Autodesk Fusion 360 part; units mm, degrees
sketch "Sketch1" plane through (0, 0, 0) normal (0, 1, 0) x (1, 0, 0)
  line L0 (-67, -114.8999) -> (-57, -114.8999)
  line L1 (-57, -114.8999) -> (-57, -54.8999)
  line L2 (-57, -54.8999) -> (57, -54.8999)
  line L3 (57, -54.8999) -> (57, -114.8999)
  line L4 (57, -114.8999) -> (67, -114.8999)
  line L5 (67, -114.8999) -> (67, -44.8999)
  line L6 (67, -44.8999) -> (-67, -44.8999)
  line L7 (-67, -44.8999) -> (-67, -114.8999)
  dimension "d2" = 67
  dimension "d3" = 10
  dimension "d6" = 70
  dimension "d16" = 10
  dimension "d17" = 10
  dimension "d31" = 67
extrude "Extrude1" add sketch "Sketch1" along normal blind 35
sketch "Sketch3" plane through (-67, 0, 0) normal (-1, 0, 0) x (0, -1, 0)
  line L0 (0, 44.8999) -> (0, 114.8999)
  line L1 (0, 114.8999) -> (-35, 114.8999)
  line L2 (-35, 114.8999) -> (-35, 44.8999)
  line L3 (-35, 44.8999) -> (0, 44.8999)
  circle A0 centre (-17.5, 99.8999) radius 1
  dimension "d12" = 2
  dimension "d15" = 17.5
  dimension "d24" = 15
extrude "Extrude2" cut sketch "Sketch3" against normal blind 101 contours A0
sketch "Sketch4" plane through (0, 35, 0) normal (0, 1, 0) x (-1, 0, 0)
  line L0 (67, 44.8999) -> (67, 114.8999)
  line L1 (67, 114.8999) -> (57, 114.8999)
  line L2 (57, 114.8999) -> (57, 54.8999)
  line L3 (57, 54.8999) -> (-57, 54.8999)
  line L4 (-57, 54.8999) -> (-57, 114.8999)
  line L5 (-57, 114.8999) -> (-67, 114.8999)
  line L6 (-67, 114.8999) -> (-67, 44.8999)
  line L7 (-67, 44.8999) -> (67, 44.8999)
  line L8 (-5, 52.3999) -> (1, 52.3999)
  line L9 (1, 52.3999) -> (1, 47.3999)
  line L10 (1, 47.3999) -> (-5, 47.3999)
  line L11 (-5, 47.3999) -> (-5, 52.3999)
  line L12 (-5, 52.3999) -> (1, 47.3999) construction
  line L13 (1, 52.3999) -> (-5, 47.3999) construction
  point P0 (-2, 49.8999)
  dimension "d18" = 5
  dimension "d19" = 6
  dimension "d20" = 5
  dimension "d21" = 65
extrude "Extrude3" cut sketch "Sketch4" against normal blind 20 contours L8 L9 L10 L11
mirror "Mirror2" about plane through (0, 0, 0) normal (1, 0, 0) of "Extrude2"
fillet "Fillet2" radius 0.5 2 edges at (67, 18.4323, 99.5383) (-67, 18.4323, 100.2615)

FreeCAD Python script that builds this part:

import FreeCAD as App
import Part
import Sketcher

V = App.Vector
Q = App.Units.Quantity


def edges_at(feature, points):
    """Names of the edges that pass closest to the given points."""
    edges = feature.Shape.Edges
    near = lambda p: min(range(len(edges)), key=lambda i: edges[i].distToShape(Part.Vertex(*p))[0])
    return sorted({f"Edge{near(p) + 1}" for p in points})

doc = App.newDocument("Part")
body = doc.addObject("PartDesign::Body", "Body")

# Sketch on XZ plane
sketch1 = body.newObject("Sketcher::SketchObject", "Sketch")
sketch1.AttachmentSupport = (doc.getObject("XZ_Plane"), [""])
sketch1.MapMode = "FlatFace"
sketch1.addGeometry(Part.LineSegment(V(-67, 45, 0), V(-67, 115, 0)), False)
sketch1.addGeometry(Part.LineSegment(V(-67, 115, 0), V(-57, 115, 0)), False)
sketch1.addGeometry(Part.LineSegment(V(-57, 115, 0), V(-57, 55, 0)), False)
sketch1.addGeometry(Part.LineSegment(V(-57, 55, 0), V(57, 55, 0)), False)
sketch1.addGeometry(Part.LineSegment(V(57, 55, 0), V(57, 115, 0)), False)
sketch1.addGeometry(Part.LineSegment(V(57, 115, 0), V(67, 115, 0)), False)
sketch1.addGeometry(Part.LineSegment(V(67, 115, 0), V(67, 45, 0)), False)
sketch1.addGeometry(Part.LineSegment(V(67, 45, 0), V(-67, 45, 0)), False)
sketch1.addConstraint(Sketcher.Constraint("Coincident", 0, 2, 1, 1))
sketch1.addConstraint(Sketcher.Constraint("Coincident", 1, 2, 2, 1))
sketch1.addConstraint(Sketcher.Constraint("Coincident", 2, 2, 3, 1))
sketch1.addConstraint(Sketcher.Constraint("Coincident", 3, 2, 4, 1))
sketch1.addConstraint(Sketcher.Constraint("Coincident", 4, 2, 5, 1))
sketch1.addConstraint(Sketcher.Constraint("Coincident", 5, 2, 6, 1))
sketch1.addConstraint(Sketcher.Constraint("Coincident", 6, 2, 7, 1))
sketch1.addConstraint(Sketcher.Constraint("Coincident", 7, 2, 0, 1))
sketch1.addConstraint(Sketcher.Constraint("Vertical", 0))
sketch1.addConstraint(Sketcher.Constraint("Horizontal", 1))
sketch1.addConstraint(Sketcher.Constraint("Vertical", 2))
sketch1.addConstraint(Sketcher.Constraint("Horizontal", 3))
sketch1.addConstraint(Sketcher.Constraint("Vertical", 4))
sketch1.addConstraint(Sketcher.Constraint("Horizontal", 5))
sketch1.addConstraint(Sketcher.Constraint("Vertical", 6))
sketch1.addConstraint(Sketcher.Constraint("Horizontal", 7))
sketch1.addConstraint(Sketcher.Constraint("Symmetric", 1, 2, 4, 2, -2))
sketch1.addConstraint(Sketcher.Constraint("Equal", 1, 5))
sketch1.addConstraint(Sketcher.Constraint("DistanceX", 1, 1, 1, 2, Q("10 mm")))
sketch1.addConstraint(Sketcher.Constraint("DistanceY", 0, 1, 0, 2, Q("70 mm")))
sketch1.addConstraint(Sketcher.Constraint("DistanceX", 0, 2, -1, 1, Q("67 mm")))
sketch1.addConstraint(Sketcher.Constraint("DistanceY", 6, 2, 3, 2, Q("10 mm")))
sketch1.addConstraint(Sketcher.Constraint("DistanceY", -1, 1, 0, 2, Q("114.9 mm")))
pad1 = body.newObject("PartDesign::Pad", "Pad")
pad1.Profile = sketch1
pad1.Length = 35
pad1.Reversed = True

# Sketch on YZ plane
sketch2 = body.newObject("Sketcher::SketchObject", "Sketch001")
sketch2.AttachmentSupport = (doc.getObject("YZ_Plane"), [""])
sketch2.MapMode = "FlatFace"
sketch2.AttachmentOffset = App.Placement(V(0, 0, -67), App.Rotation())
sketch2.addGeometry(Part.Circle(V(17.5, 99.9, 0), V(0, 0, 1), 1), False)
sketch2.addConstraint(Sketcher.Constraint("Diameter", 0, Q("2 mm")))
sketch2.addConstraint(Sketcher.Constraint("DistanceX", -1, 1, 0, 3, Q("17.5 mm")))
sketch2.addConstraint(Sketcher.Constraint("DistanceY", -1, 1, 0, 3, Q("99.9 mm")))
pocket1 = body.newObject("PartDesign::Pocket", "Pocket")
pocket1.Profile = sketch2
pocket1.Length = 101
pocket1.Reversed = True

# Sketch on XZ plane
sketch3 = body.newObject("Sketcher::SketchObject", "Sketch002")
sketch3.AttachmentSupport = (doc.getObject("XZ_Plane"), [""])
sketch3.MapMode = "FlatFace"
sketch3.AttachmentOffset = App.Placement(V(0, 0, -35), App.Rotation())
sketch3.addGeometry(Part.LineSegment(V(-1, 52, 0), V(5, 52, 0)), False)
sketch3.addGeometry(Part.LineSegment(V(5, 52, 0), V(5, 47, 0)), False)
sketch3.addGeometry(Part.LineSegment(V(5, 47, 0), V(-1, 47, 0)), False)
sketch3.addGeometry(Part.LineSegment(V(-1, 47, 0), V(-1, 52, 0)), False)
sketch3.addConstraint(Sketcher.Constraint("Coincident", 0, 2, 1, 1))
sketch3.addConstraint(Sketcher.Constraint("Coincident", 1, 2, 2, 1))
sketch3.addConstraint(Sketcher.Constraint("Coincident", 2, 2, 3, 1))
sketch3.addConstraint(Sketcher.Constraint("Coincident", 3, 2, 0, 1))
sketch3.addConstraint(Sketcher.Constraint("Horizontal", 0))
sketch3.addConstraint(Sketcher.Constraint("Vertical", 1))
sketch3.addConstraint(Sketcher.Constraint("Horizontal", 2))
sketch3.addConstraint(Sketcher.Constraint("Vertical", 3))
sketch3.addConstraint(Sketcher.Constraint("DistanceX", 0, 1, 0, 2, Q("6 mm")))
sketch3.addConstraint(Sketcher.Constraint("DistanceY", 1, 2, 1, 1, Q("5 mm")))
sketch3.addConstraint(Sketcher.Constraint("DistanceX", -1, 1, 0, 2, Q("5 mm")))
sketch3.addConstraint(Sketcher.Constraint("DistanceY", -1, 1, 0, 2, Q("52.4 mm")))
pocket2 = body.newObject("PartDesign::Pocket", "Pocket001")
pocket2.Profile = sketch3
pocket2.Length = 20
pocket2.Reversed = True
doc.recompute()

mirrored = body.newObject("PartDesign::Mirrored", "Mirrored")
mirrored.Originals = [pocket1]
mirrored.MirrorPlane = (doc.getObject("YZ_Plane"), [""])
body.Tip = mirrored
doc.recompute()

fillet = body.newObject("PartDesign::Fillet", "Fillet")
fillet.Base = (mirrored, edges_at(mirrored, [(67, 18.432, 99.538), (-67, 18.432, 100.261)]))
fillet.Radius = 0.5

doc.recompute()
